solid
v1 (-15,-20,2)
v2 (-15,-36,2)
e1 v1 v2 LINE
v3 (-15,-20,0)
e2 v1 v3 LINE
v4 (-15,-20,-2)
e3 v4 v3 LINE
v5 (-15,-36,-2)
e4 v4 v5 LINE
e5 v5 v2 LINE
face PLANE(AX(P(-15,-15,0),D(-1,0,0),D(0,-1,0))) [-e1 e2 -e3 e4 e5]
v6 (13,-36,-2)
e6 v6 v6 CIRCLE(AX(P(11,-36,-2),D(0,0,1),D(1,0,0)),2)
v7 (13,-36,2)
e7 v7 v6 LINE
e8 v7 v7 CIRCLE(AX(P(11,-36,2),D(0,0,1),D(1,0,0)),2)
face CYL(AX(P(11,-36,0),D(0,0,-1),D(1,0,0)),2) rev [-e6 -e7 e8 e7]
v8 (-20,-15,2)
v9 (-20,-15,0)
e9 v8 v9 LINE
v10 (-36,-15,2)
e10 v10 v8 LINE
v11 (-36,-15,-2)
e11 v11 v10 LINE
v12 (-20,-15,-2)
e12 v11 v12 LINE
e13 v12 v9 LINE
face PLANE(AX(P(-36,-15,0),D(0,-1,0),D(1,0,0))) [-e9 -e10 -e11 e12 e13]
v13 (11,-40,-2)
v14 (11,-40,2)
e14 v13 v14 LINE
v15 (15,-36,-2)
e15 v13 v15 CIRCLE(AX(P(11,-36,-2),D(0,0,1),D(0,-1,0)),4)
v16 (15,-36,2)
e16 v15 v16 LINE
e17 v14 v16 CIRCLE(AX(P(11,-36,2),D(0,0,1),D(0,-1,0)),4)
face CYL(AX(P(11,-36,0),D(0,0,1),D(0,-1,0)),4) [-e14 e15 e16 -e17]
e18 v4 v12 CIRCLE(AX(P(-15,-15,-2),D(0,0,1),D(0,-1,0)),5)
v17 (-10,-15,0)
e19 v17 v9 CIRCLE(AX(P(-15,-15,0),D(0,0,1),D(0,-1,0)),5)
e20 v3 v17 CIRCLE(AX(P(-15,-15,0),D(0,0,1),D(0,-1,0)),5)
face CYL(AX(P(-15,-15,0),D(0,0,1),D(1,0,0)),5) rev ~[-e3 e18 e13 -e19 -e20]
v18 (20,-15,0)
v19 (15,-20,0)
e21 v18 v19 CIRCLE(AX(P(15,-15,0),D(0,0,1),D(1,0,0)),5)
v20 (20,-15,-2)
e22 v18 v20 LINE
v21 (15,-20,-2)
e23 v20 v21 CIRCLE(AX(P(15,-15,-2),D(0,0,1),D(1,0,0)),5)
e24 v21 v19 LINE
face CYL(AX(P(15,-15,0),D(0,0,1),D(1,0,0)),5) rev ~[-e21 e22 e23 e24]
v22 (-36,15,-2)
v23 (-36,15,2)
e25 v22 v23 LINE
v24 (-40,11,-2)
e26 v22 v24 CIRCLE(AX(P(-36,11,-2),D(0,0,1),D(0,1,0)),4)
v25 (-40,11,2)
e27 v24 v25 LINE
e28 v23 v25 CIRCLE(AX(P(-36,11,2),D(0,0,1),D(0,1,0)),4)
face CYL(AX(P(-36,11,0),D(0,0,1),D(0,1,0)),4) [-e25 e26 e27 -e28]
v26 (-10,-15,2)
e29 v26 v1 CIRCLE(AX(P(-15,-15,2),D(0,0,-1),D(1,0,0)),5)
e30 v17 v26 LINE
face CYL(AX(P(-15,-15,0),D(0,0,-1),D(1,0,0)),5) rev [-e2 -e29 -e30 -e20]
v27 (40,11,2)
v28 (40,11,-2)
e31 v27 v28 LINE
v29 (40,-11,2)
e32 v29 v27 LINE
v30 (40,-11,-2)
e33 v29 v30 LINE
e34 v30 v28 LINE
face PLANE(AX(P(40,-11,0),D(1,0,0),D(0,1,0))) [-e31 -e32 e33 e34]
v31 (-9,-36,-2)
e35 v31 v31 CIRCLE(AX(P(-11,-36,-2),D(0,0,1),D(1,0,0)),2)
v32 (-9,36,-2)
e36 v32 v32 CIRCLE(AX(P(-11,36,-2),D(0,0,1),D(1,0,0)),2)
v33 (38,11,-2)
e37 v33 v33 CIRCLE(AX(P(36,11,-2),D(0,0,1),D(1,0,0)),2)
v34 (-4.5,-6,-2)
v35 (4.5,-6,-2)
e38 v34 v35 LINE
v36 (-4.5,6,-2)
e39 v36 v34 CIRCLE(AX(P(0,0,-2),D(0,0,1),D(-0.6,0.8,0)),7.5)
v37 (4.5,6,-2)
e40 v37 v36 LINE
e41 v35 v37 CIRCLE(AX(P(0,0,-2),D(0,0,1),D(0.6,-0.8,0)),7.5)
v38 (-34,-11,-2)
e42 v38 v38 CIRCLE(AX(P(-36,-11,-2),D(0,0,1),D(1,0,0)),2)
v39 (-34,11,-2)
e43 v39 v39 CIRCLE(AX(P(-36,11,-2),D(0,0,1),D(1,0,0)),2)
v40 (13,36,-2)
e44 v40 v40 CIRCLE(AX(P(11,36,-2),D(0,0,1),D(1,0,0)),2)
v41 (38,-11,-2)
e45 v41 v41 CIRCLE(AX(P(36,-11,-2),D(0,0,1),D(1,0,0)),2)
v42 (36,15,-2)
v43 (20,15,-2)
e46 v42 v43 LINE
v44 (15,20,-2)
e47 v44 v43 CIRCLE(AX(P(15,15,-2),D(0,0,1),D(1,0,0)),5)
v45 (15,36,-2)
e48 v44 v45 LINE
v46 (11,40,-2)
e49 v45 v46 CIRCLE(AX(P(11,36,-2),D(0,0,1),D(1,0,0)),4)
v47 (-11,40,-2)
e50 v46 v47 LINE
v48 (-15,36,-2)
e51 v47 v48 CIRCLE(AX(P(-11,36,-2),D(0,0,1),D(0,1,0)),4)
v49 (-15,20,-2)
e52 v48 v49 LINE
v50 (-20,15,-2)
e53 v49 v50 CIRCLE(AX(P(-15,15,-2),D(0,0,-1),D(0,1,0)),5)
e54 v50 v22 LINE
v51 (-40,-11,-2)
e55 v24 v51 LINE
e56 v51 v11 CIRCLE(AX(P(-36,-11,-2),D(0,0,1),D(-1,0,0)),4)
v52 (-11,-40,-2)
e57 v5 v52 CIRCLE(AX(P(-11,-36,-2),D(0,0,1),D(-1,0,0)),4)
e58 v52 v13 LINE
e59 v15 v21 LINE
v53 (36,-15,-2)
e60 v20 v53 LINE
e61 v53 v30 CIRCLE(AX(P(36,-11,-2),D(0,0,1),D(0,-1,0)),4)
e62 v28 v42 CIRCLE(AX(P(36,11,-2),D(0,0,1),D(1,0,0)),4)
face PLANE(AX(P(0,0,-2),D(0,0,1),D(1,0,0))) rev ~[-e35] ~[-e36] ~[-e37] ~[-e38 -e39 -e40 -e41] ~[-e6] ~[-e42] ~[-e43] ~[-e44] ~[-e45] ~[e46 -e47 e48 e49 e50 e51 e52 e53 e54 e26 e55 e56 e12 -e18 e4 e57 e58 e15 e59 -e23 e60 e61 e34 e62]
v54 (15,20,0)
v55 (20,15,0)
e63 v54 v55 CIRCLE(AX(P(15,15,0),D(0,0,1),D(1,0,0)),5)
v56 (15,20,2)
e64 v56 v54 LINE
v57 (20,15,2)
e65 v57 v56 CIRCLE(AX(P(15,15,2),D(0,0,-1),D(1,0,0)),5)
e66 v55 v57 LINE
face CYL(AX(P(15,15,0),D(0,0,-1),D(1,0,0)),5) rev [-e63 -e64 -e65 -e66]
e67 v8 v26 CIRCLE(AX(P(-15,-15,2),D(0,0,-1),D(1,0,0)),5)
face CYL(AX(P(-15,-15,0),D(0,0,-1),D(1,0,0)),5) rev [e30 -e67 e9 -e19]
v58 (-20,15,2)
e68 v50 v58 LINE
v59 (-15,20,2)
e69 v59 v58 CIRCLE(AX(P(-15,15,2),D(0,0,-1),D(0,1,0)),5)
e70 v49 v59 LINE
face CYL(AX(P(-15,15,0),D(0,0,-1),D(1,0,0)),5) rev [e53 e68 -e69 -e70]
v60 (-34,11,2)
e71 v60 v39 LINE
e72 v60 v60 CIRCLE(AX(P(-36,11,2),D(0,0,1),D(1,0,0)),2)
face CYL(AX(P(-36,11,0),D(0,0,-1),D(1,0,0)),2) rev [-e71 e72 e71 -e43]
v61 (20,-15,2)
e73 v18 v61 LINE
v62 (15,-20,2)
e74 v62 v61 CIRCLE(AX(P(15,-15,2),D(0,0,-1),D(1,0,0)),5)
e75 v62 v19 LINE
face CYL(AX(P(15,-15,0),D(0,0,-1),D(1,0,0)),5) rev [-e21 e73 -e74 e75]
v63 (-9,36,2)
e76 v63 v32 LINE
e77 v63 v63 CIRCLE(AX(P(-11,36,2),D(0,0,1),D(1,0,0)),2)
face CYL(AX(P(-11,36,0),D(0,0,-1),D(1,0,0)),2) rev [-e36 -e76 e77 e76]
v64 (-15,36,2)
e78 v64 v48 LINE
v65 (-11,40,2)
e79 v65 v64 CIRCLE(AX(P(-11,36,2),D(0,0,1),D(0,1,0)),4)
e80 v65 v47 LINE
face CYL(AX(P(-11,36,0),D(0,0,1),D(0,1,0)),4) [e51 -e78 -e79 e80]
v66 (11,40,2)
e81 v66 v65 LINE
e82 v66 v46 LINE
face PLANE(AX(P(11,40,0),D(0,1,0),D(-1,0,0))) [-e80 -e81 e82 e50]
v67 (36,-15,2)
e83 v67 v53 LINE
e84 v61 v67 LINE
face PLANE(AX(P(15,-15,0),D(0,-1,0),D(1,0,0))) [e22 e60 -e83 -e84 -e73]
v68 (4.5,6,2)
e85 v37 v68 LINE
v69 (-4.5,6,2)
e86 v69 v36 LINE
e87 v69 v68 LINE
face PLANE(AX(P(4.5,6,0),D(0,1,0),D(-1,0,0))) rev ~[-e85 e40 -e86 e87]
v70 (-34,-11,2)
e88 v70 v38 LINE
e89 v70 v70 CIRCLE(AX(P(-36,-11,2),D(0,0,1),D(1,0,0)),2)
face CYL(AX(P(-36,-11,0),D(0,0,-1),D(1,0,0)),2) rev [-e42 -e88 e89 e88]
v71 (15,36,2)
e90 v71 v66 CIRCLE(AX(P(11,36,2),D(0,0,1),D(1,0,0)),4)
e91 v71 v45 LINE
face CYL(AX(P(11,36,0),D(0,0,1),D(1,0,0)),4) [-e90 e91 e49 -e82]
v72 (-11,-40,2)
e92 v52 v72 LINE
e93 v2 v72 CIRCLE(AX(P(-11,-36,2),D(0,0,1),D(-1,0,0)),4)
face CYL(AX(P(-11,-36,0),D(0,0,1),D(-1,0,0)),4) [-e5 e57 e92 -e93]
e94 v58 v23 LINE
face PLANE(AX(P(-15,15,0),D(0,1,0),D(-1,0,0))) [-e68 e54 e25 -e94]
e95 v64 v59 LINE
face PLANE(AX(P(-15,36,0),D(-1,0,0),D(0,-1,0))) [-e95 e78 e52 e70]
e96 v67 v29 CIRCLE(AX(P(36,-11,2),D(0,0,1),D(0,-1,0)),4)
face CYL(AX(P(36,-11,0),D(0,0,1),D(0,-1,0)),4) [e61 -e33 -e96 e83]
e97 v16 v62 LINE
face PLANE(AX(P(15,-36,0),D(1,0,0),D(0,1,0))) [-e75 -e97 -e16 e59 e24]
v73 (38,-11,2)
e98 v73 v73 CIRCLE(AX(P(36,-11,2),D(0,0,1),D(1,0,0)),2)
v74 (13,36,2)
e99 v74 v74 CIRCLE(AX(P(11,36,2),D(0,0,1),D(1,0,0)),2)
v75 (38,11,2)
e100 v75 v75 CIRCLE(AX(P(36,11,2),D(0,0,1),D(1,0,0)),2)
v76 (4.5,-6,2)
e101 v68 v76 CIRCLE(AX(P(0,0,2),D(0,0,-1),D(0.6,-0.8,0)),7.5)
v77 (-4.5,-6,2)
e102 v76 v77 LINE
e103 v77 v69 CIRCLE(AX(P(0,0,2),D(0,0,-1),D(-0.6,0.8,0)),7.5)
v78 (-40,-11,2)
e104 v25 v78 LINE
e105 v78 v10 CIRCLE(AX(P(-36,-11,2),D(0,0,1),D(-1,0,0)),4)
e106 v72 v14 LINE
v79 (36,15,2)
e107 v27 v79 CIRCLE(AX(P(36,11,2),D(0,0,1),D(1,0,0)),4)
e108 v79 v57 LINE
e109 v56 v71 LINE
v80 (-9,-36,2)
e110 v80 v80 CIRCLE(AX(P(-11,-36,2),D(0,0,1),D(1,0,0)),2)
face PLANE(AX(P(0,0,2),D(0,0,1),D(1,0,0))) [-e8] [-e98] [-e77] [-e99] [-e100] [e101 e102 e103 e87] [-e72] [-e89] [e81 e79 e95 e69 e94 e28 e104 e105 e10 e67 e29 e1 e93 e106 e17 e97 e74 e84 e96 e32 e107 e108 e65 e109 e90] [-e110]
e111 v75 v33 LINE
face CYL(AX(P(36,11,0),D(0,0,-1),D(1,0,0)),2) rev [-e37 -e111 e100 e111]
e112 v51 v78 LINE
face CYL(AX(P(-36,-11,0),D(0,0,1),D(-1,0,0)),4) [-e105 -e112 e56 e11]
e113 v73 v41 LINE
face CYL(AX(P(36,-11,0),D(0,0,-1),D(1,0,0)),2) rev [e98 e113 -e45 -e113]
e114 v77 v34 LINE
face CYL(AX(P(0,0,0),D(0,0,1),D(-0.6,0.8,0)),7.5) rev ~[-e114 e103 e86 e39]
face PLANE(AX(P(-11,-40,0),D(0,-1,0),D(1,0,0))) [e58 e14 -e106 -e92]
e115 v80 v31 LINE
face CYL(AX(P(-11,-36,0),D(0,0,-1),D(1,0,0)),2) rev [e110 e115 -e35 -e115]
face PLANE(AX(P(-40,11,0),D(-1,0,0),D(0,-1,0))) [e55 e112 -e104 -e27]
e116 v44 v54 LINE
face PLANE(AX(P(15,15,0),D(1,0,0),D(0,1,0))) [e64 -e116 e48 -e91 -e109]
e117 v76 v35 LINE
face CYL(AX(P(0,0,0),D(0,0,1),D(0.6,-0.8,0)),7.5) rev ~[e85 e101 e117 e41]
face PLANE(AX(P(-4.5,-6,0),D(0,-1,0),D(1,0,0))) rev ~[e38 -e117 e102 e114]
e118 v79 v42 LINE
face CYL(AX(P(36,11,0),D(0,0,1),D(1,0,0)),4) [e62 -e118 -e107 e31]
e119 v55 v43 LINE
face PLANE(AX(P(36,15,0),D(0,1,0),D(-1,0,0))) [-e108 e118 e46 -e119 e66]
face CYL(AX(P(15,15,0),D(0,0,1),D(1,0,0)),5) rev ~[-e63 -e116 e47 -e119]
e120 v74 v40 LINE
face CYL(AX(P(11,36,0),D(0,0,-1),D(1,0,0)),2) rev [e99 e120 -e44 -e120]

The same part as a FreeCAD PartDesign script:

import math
import FreeCAD as App
import Part
import Sketcher
from FreeCAD import Vector
Q = App.Units.Quantity

doc = App.newDocument("Part")
body = doc.addObject("PartDesign::Body", "Body")

# Sketch on XY plane
sketch1 = body.newObject("Sketcher::SketchObject", "Sketch")
sketch1.AttachmentSupport = (doc.getObject("XY_Plane"), [""])
sketch1.MapMode = "FlatFace"
sketch1.addGeometry([
    Part.LineSegment(Vector(-15, 36, 0), Vector(-15, 15, 0)),  # 0
    Part.LineSegment(Vector(-15, 15, 0), Vector(-36, 15, 0)),  # 1
    Part.ArcOfCircle(Part.Circle(Vector(-36, 11, 0), Vector(0, 0, 1), 4), math.radians(90), math.radians(180)),  # 2
    Part.LineSegment(Vector(-40, 11, 0), Vector(-40, -11, 0)),  # 3
    Part.ArcOfCircle(Part.Circle(Vector(-36, -11, 0), Vector(0, 0, 1), 4), math.radians(180), math.radians(270)),  # 4
    Part.LineSegment(Vector(-36, -15, 0), Vector(-15, -15, 0)),  # 5
    Part.LineSegment(Vector(-15, -15, 0), Vector(-15, -36, 0)),  # 6
    Part.ArcOfCircle(Part.Circle(Vector(-11, -36, 0), Vector(0, 0, 1), 4), math.radians(180), math.radians(270)),  # 7
    Part.LineSegment(Vector(-11, -40, 0), Vector(11, -40, 0)),  # 8
    Part.ArcOfCircle(Part.Circle(Vector(11, -36, 0), Vector(0, 0, 1), 4), math.radians(-90), math.radians(0)),  # 9
    Part.LineSegment(Vector(15, -36, 0), Vector(15, -15, 0)),  # 10
    Part.LineSegment(Vector(15, -15, 0), Vector(36, -15, 0)),  # 11
    Part.ArcOfCircle(Part.Circle(Vector(36, -11, 0), Vector(0, 0, 1), 4), math.radians(-90), math.radians(0)),  # 12
    Part.LineSegment(Vector(40, -11, 0), Vector(40, 11, 0)),  # 13
    Part.ArcOfCircle(Part.Circle(Vector(36, 11, 0), Vector(0, 0, 1), 4), math.radians(0), math.radians(90)),  # 14
    Part.LineSegment(Vector(36, 15, 0), Vector(15, 15, 0)),  # 15
    Part.LineSegment(Vector(15, 15, 0), Vector(15, 36, 0)),  # 16
    Part.ArcOfCircle(Part.Circle(Vector(11, 36, 0), Vector(0, 0, 1), 4), math.radians(0), math.radians(90)),  # 17
    Part.LineSegment(Vector(11, 40, 0), Vector(-11, 40, 0)),  # 18
    Part.ArcOfCircle(Part.Circle(Vector(-11, 36, 0), Vector(0, 0, 1), 4), math.radians(90), math.radians(180)),  # 19
    Part.Circle(Vector(-11, -36, 0), Vector(0, 0, 1), 2),  # 20
    Part.Circle(Vector(-36, -11, 0), Vector(0, 0, 1), 2),  # 21
    Part.Circle(Vector(11, -36, 0), Vector(0, 0, 1), 2),  # 22
    Part.Circle(Vector(36, -11, 0), Vector(0, 0, 1), 2),  # 23
    Part.Circle(Vector(-36, 11, 0), Vector(0, 0, 1), 2),  # 24
    Part.Circle(Vector(-11, 36, 0), Vector(0, 0, 1), 2),  # 25
    Part.Circle(Vector(36, 11, 0), Vector(0, 0, 1), 2),  # 26
    Part.Circle(Vector(11, 36, 0), Vector(0, 0, 1), 2),  # 27
], False)
sketch1.addConstraint([
    Sketcher.Constraint("Coincident", 0, 2, 1, 1),
    Sketcher.Constraint("Tangent", 1, 2, 2, 1),
    Sketcher.Constraint("Tangent", 2, 2, 3, 1),
    Sketcher.Constraint("Tangent", 3, 2, 4, 1),
    Sketcher.Constraint("Tangent", 4, 2, 5, 1),
    Sketcher.Constraint("Coincident", 5, 2, 6, 1),
    Sketcher.Constraint("Tangent", 6, 2, 7, 1),
    Sketcher.Constraint("Tangent", 7, 2, 8, 1),
    Sketcher.Constraint("Tangent", 8, 2, 9, 1),
    Sketcher.Constraint("Tangent", 9, 2, 10, 1),
    Sketcher.Constraint("Coincident", 10, 2, 11, 1),
    Sketcher.Constraint("Tangent", 11, 2, 12, 1),
    Sketcher.Constraint("Tangent", 12, 2, 13, 1),
    Sketcher.Constraint("Tangent", 13, 2, 14, 1),
    Sketcher.Constraint("Tangent", 14, 2, 15, 1),
    Sketcher.Constraint("Coincident", 15, 2, 16, 1),
    Sketcher.Constraint("Tangent", 16, 2, 17, 1),
    Sketcher.Constraint("Tangent", 17, 2, 18, 1),
    Sketcher.Constraint("Tangent", 18, 2, 19, 1),
    Sketcher.Constraint("Tangent", 19, 2, 0, 1),
    Sketcher.Constraint("Vertical", 0),
    Sketcher.Constraint("Horizontal", 1),
    Sketcher.Constraint("Vertical", 3),
    Sketcher.Constraint("Horizontal", 5),
    Sketcher.Constraint("Vertical", 6),
    Sketcher.Constraint("Horizontal", 8),
    Sketcher.Constraint("Vertical", 10),
    Sketcher.Constraint("Horizontal", 11),
    Sketcher.Constraint("Vertical", 13),
    Sketcher.Constraint("Horizontal", 15),
    Sketcher.Constraint("Vertical", 16),
    Sketcher.Constraint("Horizontal", 18),
    Sketcher.Constraint("Coincident", 20, 3, 7, 3),
    Sketcher.Constraint("Coincident", 21, 3, 4, 3),
    Sketcher.Constraint("Coincident", 22, 3, 9, 3),
    Sketcher.Constraint("Coincident", 23, 3, 12, 3),
    Sketcher.Constraint("Coincident", 24, 3, 2, 3),
    Sketcher.Constraint("Coincident", 25, 3, 19, 3),
    Sketcher.Constraint("Coincident", 26, 3, 14, 3),
    Sketcher.Constraint("Coincident", 27, 3, 17, 3),
    Sketcher.Constraint("Equal", 2, 4),
    Sketcher.Constraint("Equal", 4, 7),
    Sketcher.Constraint("Equal", 7, 9),
    Sketcher.Constraint("Equal", 9, 12),
    Sketcher.Constraint("Equal", 12, 14),
    Sketcher.Constraint("Equal", 14, 17),
    Sketcher.Constraint("Equal", 17, 19),
    Sketcher.Constraint("Equal", 20, 21),
    Sketcher.Constraint("Equal", 21, 22),
    Sketcher.Constraint("Equal", 22, 23),
    Sketcher.Constraint("Equal", 23, 24),
    Sketcher.Constraint("Equal", 24, 25),
    Sketcher.Constraint("Equal", 25, 26),
    Sketcher.Constraint("Equal", 26, 27),
    Sketcher.Constraint("Symmetric", 2, 3, 12, 3, -1, 1),
    Sketcher.Constraint("Symmetric", 7, 3, 17, 3, -1, 1),
    Sketcher.Constraint("Symmetric", 5, 2, 10, 2, -2),
    Sketcher.Constraint("Symmetric", 0, 2, 15, 2, -2),
    Sketcher.Constraint("Equal", 15, 0),
    Sketcher.Constraint("Equal", 18, 3),
    Sketcher.Constraint("Diameter", 20, Q("4 mm")),
    Sketcher.Constraint("Radius", 2, Q("4 mm")),
    Sketcher.Constraint("DistanceX", 1, 2, 1, 1, Q("21 mm")),
    Sketcher.Constraint("DistanceX", 8, 1, 8, 2, Q("22 mm")),
])
pad1 = body.newObject("PartDesign::Pad", "Pad")
pad1.Profile = sketch1
pad1.Length = 4
pad1.Midplane = True

# Sketch on XY plane
sketch2 = body.newObject("Sketcher::SketchObject", "Sketch001")
sketch2.AttachmentSupport = (doc.getObject("XY_Plane"), [""])
sketch2.MapMode = "FlatFace"
sketch2.addGeometry([
    Part.LineSegment(Vector(4.5, 6, 0), Vector(-4.5, 6, 0)),
    Part.ArcOfCircle(Part.Circle(Vector(0, 0, 0), Vector(0, 0, 1), 7.5), math.radians(126.869898), math.radians(233.130102)),
    Part.LineSegment(Vector(-4.5, -6, 0), Vector(4.5, -6, 0)),
    Part.ArcOfCircle(Part.Circle(Vector(0, 0, 0), Vector(0, 0, 1), 7.5), math.radians(-53.130102), math.radians(53.130102)),
], False)
sketch2.addConstraint([
    Sketcher.Constraint("Coincident", 0, 2, 1, 1),
    Sketcher.Constraint("Coincident", 1, 2, 2, 1),
    Sketcher.Constraint("Coincident", 2, 2, 3, 1),
    Sketcher.Constraint("Coincident", 3, 2, 0, 1),
    Sketcher.Constraint("Horizontal", 0),
    Sketcher.Constraint("Horizontal", 2),
    Sketcher.Constraint("Coincident", 1, 3, -1, 1),
    Sketcher.Constraint("Coincident", 3, 3, -1, 1),
    Sketcher.Constraint("Equal", 1, 3),
    Sketcher.Constraint("Vertical", 0, 2, 1, 2),
    Sketcher.Constraint("Radius", 1, Q("7.5 mm")),
    Sketcher.Constraint("DistanceX", 0, 2, 0, 1, Q("9 mm")),
])
pocket1 = body.newObject("PartDesign::Pocket", "Pocket")
pocket1.Profile = sketch2
pocket1.Type = "ThroughAll"
pocket1.Midplane = True

# Sketch on XY plane
sketch3 = body.newObject("Sketcher::SketchObject", "Sketch002")
sketch3.AttachmentSupport = (doc.getObject("XY_Plane"), [""])
sketch3.MapMode = "FlatFace"
sketch3.addGeometry([
    Part.Circle(Vector(-15, 15, 0), Vector(0, 0, 1), 5),
    Part.Circle(Vector(-15, -15, 0), Vector(0, 0, 1), 5),
    Part.Circle(Vector(15, -15, 0), Vector(0, 0, 1), 5),
    Part.Circle(Vector(15, 15, 0), Vector(0, 0, 1), 5),
], False)
sketch3.addConstraint([
    Sketcher.Constraint("Equal", 0, 1),
    Sketcher.Constraint("Equal", 1, 2),
    Sketcher.Constraint("Equal", 2, 3),
    Sketcher.Constraint("Symmetric", 0, 3, 2, 3, -1, 1),
    Sketcher.Constraint("Symmetric", 1, 3, 3, 3, -1, 1),
    Sketcher.Constraint("Symmetric", 1, 3, 2, 3, -2),
    Sketcher.Constraint("Diameter", 0, Q("10 mm")),
    Sketcher.Constraint("DistanceX", 0, 3, -1, 1, Q("15 mm")),
    Sketcher.Constraint("DistanceY", -1, 1, 0, 3, Q("15 mm")),
])
pocket2 = body.newObject("PartDesign::Pocket", "Pocket001")
pocket2.Profile = sketch3
pocket2.Type = "ThroughAll"
pocket2.Midplane = True

doc.recompute()
